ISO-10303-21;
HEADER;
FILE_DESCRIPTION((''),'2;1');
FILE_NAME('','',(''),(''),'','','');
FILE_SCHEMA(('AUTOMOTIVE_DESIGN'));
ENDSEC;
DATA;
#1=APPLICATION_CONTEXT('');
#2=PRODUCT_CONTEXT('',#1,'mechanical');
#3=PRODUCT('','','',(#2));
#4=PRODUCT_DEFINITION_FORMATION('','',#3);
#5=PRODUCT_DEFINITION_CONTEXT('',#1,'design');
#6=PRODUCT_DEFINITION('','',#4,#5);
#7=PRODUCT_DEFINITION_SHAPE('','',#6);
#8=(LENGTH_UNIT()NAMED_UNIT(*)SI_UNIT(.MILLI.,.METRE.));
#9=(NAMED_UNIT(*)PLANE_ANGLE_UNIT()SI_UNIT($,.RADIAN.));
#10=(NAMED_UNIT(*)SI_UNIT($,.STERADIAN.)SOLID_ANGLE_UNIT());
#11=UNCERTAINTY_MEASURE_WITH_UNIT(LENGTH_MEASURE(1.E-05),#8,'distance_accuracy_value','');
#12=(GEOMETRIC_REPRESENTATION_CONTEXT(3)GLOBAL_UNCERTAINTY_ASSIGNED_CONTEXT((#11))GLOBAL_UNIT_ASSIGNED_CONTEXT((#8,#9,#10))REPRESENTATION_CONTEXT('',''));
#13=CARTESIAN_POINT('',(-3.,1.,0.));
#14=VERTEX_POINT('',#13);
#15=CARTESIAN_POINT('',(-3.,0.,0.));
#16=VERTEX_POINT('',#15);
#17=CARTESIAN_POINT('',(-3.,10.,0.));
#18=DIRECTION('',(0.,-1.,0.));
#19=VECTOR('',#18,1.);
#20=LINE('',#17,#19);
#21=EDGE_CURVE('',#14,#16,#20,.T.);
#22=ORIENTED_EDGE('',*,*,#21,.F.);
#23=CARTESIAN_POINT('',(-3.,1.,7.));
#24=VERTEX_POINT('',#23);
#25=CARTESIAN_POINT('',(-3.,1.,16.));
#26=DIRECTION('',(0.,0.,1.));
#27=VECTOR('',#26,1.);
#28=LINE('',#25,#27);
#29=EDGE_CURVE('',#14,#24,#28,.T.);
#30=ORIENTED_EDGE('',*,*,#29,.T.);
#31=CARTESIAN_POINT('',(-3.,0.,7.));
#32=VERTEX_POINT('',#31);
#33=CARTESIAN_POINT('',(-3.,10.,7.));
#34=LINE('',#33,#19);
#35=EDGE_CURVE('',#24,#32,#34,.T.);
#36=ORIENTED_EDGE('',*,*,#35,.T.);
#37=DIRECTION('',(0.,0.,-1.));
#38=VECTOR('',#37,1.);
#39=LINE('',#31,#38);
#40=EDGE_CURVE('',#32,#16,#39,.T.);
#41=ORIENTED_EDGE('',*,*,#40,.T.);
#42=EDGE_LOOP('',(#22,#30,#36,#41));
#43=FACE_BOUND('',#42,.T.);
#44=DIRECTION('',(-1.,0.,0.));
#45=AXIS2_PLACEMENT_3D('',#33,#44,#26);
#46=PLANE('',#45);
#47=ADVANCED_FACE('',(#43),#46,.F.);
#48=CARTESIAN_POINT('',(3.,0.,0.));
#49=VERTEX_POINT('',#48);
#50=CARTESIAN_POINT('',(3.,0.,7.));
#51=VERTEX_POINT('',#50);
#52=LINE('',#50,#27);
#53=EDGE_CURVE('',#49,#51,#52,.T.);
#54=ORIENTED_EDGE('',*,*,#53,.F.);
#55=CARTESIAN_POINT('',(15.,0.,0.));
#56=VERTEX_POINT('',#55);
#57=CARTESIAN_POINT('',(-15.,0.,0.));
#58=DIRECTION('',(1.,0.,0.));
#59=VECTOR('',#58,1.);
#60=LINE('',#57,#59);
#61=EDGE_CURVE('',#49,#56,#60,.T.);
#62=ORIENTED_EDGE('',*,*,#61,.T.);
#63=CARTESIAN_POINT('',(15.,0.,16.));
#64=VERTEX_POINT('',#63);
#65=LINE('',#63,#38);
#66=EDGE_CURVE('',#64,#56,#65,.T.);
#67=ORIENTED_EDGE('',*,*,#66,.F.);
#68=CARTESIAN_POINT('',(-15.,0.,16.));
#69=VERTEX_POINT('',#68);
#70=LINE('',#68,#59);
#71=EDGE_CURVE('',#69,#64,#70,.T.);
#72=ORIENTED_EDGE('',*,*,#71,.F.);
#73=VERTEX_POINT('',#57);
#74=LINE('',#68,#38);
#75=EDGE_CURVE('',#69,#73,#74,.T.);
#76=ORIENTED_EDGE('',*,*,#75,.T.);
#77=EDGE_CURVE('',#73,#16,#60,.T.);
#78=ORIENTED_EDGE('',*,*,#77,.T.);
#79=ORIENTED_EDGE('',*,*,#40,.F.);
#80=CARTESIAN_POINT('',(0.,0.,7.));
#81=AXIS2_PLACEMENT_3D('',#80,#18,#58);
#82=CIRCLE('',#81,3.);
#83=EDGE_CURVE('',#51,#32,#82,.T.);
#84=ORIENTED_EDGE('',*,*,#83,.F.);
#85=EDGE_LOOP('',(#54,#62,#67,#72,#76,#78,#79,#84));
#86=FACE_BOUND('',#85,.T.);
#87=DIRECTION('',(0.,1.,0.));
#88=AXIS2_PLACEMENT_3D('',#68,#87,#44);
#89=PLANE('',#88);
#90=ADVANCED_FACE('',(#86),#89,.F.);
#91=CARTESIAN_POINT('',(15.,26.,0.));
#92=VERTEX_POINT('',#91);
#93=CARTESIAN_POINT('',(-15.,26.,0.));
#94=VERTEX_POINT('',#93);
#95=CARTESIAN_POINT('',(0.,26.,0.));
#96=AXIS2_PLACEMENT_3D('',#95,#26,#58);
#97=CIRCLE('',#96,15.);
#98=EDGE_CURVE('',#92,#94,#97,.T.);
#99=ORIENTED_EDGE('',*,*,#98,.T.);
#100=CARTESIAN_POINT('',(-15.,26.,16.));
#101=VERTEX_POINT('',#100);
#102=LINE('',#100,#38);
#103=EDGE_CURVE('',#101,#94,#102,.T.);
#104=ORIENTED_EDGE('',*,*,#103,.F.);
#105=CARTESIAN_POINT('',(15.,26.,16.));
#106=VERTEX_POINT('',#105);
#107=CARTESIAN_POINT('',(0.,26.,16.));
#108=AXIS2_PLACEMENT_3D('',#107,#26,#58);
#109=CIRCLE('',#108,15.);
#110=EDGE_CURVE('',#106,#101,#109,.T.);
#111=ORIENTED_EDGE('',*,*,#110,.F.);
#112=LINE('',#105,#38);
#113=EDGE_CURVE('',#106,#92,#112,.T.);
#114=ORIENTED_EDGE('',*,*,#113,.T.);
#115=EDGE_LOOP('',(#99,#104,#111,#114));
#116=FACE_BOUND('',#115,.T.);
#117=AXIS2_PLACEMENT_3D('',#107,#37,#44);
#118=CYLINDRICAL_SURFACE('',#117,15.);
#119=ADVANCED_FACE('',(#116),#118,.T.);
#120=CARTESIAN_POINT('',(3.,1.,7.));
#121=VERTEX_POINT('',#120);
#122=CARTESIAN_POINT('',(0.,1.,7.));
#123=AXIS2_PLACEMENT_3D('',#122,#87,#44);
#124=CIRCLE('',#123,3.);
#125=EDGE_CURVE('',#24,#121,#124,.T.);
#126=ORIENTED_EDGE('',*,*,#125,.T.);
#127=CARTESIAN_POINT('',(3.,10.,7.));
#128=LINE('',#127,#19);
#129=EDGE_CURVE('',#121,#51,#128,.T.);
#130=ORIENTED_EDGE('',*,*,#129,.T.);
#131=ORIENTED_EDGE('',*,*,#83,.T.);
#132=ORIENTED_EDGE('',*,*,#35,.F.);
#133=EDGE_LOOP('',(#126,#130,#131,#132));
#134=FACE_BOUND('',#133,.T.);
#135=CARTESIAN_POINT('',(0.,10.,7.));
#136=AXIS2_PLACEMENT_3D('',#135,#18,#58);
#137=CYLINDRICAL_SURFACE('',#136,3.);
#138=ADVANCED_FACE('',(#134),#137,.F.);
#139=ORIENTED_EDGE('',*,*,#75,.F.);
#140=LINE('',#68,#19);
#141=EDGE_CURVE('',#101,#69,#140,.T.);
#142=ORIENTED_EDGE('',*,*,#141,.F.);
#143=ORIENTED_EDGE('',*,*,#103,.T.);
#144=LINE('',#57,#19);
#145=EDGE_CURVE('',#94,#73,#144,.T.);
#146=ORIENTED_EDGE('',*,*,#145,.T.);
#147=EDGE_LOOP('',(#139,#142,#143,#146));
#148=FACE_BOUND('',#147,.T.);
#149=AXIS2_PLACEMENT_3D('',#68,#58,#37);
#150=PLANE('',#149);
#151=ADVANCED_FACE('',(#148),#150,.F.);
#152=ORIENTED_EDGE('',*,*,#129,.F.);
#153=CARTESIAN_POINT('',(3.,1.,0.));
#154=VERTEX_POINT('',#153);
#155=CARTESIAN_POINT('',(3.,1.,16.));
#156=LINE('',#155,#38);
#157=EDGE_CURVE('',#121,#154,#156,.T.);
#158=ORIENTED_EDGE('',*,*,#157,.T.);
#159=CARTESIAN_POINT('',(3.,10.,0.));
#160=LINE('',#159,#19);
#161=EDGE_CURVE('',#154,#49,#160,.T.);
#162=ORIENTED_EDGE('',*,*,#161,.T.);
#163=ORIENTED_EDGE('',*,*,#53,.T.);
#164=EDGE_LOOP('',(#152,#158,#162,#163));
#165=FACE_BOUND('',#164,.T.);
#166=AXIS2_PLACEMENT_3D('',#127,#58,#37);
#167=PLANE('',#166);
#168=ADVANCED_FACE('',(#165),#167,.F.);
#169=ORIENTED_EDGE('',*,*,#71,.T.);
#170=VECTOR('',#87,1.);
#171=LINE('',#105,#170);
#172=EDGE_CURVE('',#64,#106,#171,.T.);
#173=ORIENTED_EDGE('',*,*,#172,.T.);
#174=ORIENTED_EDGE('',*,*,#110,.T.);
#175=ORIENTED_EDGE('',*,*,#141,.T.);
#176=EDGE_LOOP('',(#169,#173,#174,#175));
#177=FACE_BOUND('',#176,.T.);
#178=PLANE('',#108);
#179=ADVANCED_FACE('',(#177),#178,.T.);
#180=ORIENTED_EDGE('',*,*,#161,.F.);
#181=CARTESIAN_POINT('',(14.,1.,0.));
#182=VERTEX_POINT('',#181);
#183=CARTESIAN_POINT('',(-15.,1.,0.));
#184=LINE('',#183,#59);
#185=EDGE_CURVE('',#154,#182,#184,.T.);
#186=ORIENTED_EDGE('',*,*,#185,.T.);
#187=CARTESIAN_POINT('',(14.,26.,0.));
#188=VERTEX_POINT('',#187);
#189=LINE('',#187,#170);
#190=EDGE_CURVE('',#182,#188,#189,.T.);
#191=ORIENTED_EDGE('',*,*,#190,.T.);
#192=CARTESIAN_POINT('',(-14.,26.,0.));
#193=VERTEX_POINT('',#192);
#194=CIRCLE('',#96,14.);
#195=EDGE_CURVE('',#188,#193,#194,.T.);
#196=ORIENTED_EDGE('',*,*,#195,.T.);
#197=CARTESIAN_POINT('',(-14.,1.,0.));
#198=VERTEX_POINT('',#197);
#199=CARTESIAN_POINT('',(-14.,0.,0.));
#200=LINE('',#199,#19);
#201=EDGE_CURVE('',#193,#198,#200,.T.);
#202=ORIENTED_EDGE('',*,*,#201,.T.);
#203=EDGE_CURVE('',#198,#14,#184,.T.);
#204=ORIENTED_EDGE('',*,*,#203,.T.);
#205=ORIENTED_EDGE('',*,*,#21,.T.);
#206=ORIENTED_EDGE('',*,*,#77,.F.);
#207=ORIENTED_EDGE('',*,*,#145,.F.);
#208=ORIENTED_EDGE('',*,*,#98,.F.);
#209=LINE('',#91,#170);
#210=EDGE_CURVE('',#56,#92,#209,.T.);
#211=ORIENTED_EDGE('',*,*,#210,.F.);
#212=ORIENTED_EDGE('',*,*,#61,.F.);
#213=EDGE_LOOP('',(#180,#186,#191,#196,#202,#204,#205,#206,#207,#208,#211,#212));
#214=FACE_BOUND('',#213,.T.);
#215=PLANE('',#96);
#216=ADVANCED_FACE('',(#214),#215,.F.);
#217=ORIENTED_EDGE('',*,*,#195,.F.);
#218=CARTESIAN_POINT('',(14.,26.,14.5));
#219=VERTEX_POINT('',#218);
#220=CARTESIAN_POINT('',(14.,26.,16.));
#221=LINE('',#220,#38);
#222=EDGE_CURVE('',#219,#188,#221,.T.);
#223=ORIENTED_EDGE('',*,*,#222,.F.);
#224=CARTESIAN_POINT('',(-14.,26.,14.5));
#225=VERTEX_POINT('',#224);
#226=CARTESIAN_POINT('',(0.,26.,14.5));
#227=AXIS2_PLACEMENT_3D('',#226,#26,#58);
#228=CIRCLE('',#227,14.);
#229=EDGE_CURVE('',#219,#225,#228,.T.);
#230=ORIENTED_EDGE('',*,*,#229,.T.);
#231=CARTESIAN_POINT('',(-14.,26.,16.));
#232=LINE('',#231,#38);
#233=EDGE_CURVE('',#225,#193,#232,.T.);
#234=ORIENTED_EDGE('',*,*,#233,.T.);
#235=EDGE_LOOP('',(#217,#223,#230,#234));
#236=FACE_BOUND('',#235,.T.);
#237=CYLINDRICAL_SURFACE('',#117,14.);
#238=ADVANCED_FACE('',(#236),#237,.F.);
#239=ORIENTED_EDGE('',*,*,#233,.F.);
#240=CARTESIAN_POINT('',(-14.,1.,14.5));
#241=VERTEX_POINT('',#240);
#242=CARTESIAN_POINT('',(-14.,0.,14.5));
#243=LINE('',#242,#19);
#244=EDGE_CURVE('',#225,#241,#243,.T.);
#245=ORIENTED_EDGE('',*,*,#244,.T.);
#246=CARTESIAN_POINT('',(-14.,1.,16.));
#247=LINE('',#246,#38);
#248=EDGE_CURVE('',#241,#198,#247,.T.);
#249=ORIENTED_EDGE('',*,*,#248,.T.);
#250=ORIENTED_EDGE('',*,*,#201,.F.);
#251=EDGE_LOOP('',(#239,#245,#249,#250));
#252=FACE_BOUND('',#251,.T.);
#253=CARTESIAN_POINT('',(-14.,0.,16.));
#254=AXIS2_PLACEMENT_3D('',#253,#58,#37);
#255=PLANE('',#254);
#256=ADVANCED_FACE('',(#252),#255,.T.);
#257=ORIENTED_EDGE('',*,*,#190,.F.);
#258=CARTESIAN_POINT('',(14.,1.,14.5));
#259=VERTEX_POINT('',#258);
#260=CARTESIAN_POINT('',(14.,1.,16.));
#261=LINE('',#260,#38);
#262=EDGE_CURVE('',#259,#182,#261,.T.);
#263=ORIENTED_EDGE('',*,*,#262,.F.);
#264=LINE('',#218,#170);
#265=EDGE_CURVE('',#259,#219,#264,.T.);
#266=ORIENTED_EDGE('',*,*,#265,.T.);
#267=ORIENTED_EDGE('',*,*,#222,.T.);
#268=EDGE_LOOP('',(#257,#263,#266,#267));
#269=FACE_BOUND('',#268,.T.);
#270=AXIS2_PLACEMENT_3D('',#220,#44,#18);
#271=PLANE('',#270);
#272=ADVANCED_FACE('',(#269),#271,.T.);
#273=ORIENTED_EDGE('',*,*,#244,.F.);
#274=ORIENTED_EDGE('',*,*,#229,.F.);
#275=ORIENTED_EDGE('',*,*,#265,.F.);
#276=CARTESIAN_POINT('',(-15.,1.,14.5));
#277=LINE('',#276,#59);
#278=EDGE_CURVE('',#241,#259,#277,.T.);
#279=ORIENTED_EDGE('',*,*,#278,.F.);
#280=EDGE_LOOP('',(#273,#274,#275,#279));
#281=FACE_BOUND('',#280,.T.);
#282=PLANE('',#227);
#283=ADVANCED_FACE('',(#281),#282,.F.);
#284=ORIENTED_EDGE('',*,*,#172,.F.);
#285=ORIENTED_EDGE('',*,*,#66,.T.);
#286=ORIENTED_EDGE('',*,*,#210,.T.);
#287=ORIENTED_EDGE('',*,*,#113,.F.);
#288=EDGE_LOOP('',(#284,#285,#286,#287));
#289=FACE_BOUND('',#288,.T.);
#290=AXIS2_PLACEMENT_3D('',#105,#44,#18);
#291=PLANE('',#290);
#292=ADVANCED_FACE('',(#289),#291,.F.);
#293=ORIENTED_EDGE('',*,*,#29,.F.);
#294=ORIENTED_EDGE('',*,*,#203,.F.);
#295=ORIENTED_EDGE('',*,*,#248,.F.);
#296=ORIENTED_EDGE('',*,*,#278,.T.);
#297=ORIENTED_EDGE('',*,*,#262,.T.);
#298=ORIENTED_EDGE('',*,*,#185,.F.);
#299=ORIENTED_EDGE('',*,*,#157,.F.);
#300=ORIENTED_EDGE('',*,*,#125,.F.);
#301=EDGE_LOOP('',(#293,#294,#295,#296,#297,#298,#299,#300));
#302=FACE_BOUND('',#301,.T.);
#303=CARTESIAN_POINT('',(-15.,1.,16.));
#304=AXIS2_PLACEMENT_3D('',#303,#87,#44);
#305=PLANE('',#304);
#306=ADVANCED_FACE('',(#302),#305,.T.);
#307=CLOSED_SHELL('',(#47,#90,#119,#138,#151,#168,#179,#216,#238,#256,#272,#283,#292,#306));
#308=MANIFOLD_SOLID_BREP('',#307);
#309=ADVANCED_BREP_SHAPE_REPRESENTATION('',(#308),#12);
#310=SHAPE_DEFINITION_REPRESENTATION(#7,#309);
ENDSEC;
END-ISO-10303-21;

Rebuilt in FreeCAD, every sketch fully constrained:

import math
import FreeCAD as App
import Part
import Sketcher

V = App.Vector

doc = App.newDocument("Part")
params = doc.addObject("Spreadsheet::Sheet", "Params")
for row, (alias, value) in enumerate([
    ("sketch1_radius", "15 mm"),
    ("sketch1_radius2", "14 mm"),
    ("sketch1_height", "26 mm"),
    ("sketch1_height2", "25 mm"),
    ("pad1_length", "16 mm"),
    ("sketch2_radius", "3 mm"),
    ("sketch2_height", "7 mm"),
    ("pocket1_length", "10 mm"),
    ("sketch3_radius", "15 mm"),
    ("sketch3_height", "26 mm"),
    ("pad2_length", "1.5 mm"),
], start=1):
    params.set(f"A{row}", alias)
    params.set(f"B{row}", "=" + value)
    params.setAlias(f"B{row}", alias)

body = doc.addObject("PartDesign::Body", "Body")

# Sketch on XY plane
sketch1 = doc.addObject("Sketcher::SketchObject", "Sketch")
body.addObject(sketch1)
sketch1.AttachmentSupport = (doc.XY_Plane, [""])
sketch1.MapMode = "FlatFace"
sketch1.addGeometry([
    Part.LineSegment(V(-15, 26, 0), V(-15, 0, 0)),  # 0
    Part.LineSegment(V(-15, 0, 0), V(15, 0, 0)),  # 1
    Part.LineSegment(V(15, 0, 0), V(15, 26, 0)),  # 2
    Part.ArcOfCircle(Part.Circle(V(0, 26, 0), V(0, 0, 1), 15), math.radians(0), math.radians(180)),  # 3
    Part.LineSegment(V(-14, 1, 0), V(-14, 26, 0)),  # 4
    Part.ArcOfCircle(Part.Circle(V(0, 26, 0), V(0, 0, 1), 14), math.radians(0), math.radians(180)),  # 5
    Part.LineSegment(V(14, 26, 0), V(14, 1, 0)),  # 6
    Part.LineSegment(V(14, 1, 0), V(-14, 1, 0)),  # 7
], False)
sketch1.addConstraint([
    Sketcher.Constraint("Coincident", 0, 2, 1, 1),
    Sketcher.Constraint("Coincident", 1, 2, 2, 1),
    Sketcher.Constraint("Tangent", 2, 2, 3, 1),
    Sketcher.Constraint("Tangent", 3, 2, 0, 1),
    Sketcher.Constraint("Tangent", 4, 2, 5, 2),
    Sketcher.Constraint("Tangent", 5, 1, 6, 1),
    Sketcher.Constraint("Coincident", 6, 2, 7, 1),
    Sketcher.Constraint("Coincident", 7, 2, 4, 1),
    Sketcher.Constraint("Vertical", 0),
    Sketcher.Constraint("Horizontal", 1),
    Sketcher.Constraint("Vertical", 2),
    Sketcher.Constraint("Vertical", 4),
    Sketcher.Constraint("Vertical", 6),
    Sketcher.Constraint("Horizontal", 7),
    Sketcher.Constraint("Coincident", 5, 3, 3, 3),
    Sketcher.Constraint("Symmetric", 0, 2, 1, 2, -1, 1),
    Sketcher.Constraint("Radius", 3, 15.0),
    Sketcher.Constraint("Radius", 5, 14.0),
    Sketcher.Constraint("DistanceY", 0, 2, 0, 1, 26.0),
    Sketcher.Constraint("DistanceY", 4, 1, 4, 2, 25.0),
])
sketch1.setExpression("Constraints[16]", "Params.sketch1_radius")
sketch1.setExpression("Constraints[17]", "Params.sketch1_radius2")
sketch1.setExpression("Constraints[18]", "Params.sketch1_height")
sketch1.setExpression("Constraints[19]", "Params.sketch1_height2")
pad1 = doc.addObject("PartDesign::Pad", "Pad")
body.addObject(pad1)
pad1.Profile = sketch1
pad1.setExpression("Length", "Params.pad1_length")

# Sketch on XZ plane
sketch2 = doc.addObject("Sketcher::SketchObject", "Sketch001")
body.addObject(sketch2)
sketch2.AttachmentSupport = (doc.XZ_Plane, [""])
sketch2.MapMode = "FlatFace"
sketch2.addGeometry([
    Part.LineSegment(V(-3, 7, 0), V(-3, 0, 0)),
    Part.LineSegment(V(-3, 0, 0), V(3, 0, 0)),
    Part.LineSegment(V(3, 0, 0), V(3, 7, 0)),
    Part.ArcOfCircle(Part.Circle(V(0, 7, 0), V(0, 0, 1), 3), math.radians(0), math.radians(180)),
], False)
sketch2.addConstraint([
    Sketcher.Constraint("Coincident", 0, 2, 1, 1),
    Sketcher.Constraint("Coincident", 1, 2, 2, 1),
    Sketcher.Constraint("Tangent", 2, 2, 3, 1),
    Sketcher.Constraint("Tangent", 3, 2, 0, 1),
    Sketcher.Constraint("Vertical", 0),
    Sketcher.Constraint("Horizontal", 1),
    Sketcher.Constraint("Vertical", 2),
    Sketcher.Constraint("Symmetric", 0, 2, 1, 2, -1, 1),
    Sketcher.Constraint("Radius", 3, 3.0),
    Sketcher.Constraint("DistanceY", 0, 2, 0, 1, 7.0),
])
sketch2.setExpression("Constraints[8]", "Params.sketch2_radius")
sketch2.setExpression("Constraints[9]", "Params.sketch2_height")
pocket1 = doc.addObject("PartDesign::Pocket", "Pocket")
body.addObject(pocket1)
pocket1.Profile = sketch2
pocket1.setExpression("Length", "Params.pocket1_length")

# Sketch on XY plane
sketch3 = doc.addObject("Sketcher::SketchObject", "Sketch002")
body.addObject(sketch3)
sketch3.AttachmentSupport = (doc.XY_Plane, [""])
sketch3.MapMode = "FlatFace"
sketch3.AttachmentOffset = App.Placement(V(0, 0, 14.5), App.Rotation())
sketch3.addGeometry([
    Part.LineSegment(V(-15, 0, 0), V(15, 0, 0)),
    Part.LineSegment(V(15, 0, 0), V(15, 26, 0)),
    Part.ArcOfCircle(Part.Circle(V(0, 26, 0), V(0, 0, 1), 15), math.radians(0), math.radians(180)),
    Part.LineSegment(V(-15, 26, 0), V(-15, 0, 0)),
], False)
sketch3.addConstraint([
    Sketcher.Constraint("Coincident", 0, 2, 1, 1),
    Sketcher.Constraint("Tangent", 1, 2, 2, 1),
    Sketcher.Constraint("Tangent", 2, 2, 3, 1),
    Sketcher.Constraint("Coincident", 3, 2, 0, 1),
    Sketcher.Constraint("Horizontal", 0),
    Sketcher.Constraint("Vertical", 1),
    Sketcher.Constraint("Vertical", 3),
    Sketcher.Constraint("Symmetric", 0, 2, 3, 2, -1, 1),
    Sketcher.Constraint("Radius", 2, 15.0),
    Sketcher.Constraint("DistanceY", 1, 1, 1, 2, 26.0),
])
sketch3.setExpression("Constraints[8]", "Params.sketch3_radius")
sketch3.setExpression("Constraints[9]", "Params.sketch3_height")
pad2 = doc.addObject("PartDesign::Pad", "Pad001")
body.addObject(pad2)
pad2.Profile = sketch3
pad2.setExpression("Length", "Params.pad2_length")

doc.recompute()
